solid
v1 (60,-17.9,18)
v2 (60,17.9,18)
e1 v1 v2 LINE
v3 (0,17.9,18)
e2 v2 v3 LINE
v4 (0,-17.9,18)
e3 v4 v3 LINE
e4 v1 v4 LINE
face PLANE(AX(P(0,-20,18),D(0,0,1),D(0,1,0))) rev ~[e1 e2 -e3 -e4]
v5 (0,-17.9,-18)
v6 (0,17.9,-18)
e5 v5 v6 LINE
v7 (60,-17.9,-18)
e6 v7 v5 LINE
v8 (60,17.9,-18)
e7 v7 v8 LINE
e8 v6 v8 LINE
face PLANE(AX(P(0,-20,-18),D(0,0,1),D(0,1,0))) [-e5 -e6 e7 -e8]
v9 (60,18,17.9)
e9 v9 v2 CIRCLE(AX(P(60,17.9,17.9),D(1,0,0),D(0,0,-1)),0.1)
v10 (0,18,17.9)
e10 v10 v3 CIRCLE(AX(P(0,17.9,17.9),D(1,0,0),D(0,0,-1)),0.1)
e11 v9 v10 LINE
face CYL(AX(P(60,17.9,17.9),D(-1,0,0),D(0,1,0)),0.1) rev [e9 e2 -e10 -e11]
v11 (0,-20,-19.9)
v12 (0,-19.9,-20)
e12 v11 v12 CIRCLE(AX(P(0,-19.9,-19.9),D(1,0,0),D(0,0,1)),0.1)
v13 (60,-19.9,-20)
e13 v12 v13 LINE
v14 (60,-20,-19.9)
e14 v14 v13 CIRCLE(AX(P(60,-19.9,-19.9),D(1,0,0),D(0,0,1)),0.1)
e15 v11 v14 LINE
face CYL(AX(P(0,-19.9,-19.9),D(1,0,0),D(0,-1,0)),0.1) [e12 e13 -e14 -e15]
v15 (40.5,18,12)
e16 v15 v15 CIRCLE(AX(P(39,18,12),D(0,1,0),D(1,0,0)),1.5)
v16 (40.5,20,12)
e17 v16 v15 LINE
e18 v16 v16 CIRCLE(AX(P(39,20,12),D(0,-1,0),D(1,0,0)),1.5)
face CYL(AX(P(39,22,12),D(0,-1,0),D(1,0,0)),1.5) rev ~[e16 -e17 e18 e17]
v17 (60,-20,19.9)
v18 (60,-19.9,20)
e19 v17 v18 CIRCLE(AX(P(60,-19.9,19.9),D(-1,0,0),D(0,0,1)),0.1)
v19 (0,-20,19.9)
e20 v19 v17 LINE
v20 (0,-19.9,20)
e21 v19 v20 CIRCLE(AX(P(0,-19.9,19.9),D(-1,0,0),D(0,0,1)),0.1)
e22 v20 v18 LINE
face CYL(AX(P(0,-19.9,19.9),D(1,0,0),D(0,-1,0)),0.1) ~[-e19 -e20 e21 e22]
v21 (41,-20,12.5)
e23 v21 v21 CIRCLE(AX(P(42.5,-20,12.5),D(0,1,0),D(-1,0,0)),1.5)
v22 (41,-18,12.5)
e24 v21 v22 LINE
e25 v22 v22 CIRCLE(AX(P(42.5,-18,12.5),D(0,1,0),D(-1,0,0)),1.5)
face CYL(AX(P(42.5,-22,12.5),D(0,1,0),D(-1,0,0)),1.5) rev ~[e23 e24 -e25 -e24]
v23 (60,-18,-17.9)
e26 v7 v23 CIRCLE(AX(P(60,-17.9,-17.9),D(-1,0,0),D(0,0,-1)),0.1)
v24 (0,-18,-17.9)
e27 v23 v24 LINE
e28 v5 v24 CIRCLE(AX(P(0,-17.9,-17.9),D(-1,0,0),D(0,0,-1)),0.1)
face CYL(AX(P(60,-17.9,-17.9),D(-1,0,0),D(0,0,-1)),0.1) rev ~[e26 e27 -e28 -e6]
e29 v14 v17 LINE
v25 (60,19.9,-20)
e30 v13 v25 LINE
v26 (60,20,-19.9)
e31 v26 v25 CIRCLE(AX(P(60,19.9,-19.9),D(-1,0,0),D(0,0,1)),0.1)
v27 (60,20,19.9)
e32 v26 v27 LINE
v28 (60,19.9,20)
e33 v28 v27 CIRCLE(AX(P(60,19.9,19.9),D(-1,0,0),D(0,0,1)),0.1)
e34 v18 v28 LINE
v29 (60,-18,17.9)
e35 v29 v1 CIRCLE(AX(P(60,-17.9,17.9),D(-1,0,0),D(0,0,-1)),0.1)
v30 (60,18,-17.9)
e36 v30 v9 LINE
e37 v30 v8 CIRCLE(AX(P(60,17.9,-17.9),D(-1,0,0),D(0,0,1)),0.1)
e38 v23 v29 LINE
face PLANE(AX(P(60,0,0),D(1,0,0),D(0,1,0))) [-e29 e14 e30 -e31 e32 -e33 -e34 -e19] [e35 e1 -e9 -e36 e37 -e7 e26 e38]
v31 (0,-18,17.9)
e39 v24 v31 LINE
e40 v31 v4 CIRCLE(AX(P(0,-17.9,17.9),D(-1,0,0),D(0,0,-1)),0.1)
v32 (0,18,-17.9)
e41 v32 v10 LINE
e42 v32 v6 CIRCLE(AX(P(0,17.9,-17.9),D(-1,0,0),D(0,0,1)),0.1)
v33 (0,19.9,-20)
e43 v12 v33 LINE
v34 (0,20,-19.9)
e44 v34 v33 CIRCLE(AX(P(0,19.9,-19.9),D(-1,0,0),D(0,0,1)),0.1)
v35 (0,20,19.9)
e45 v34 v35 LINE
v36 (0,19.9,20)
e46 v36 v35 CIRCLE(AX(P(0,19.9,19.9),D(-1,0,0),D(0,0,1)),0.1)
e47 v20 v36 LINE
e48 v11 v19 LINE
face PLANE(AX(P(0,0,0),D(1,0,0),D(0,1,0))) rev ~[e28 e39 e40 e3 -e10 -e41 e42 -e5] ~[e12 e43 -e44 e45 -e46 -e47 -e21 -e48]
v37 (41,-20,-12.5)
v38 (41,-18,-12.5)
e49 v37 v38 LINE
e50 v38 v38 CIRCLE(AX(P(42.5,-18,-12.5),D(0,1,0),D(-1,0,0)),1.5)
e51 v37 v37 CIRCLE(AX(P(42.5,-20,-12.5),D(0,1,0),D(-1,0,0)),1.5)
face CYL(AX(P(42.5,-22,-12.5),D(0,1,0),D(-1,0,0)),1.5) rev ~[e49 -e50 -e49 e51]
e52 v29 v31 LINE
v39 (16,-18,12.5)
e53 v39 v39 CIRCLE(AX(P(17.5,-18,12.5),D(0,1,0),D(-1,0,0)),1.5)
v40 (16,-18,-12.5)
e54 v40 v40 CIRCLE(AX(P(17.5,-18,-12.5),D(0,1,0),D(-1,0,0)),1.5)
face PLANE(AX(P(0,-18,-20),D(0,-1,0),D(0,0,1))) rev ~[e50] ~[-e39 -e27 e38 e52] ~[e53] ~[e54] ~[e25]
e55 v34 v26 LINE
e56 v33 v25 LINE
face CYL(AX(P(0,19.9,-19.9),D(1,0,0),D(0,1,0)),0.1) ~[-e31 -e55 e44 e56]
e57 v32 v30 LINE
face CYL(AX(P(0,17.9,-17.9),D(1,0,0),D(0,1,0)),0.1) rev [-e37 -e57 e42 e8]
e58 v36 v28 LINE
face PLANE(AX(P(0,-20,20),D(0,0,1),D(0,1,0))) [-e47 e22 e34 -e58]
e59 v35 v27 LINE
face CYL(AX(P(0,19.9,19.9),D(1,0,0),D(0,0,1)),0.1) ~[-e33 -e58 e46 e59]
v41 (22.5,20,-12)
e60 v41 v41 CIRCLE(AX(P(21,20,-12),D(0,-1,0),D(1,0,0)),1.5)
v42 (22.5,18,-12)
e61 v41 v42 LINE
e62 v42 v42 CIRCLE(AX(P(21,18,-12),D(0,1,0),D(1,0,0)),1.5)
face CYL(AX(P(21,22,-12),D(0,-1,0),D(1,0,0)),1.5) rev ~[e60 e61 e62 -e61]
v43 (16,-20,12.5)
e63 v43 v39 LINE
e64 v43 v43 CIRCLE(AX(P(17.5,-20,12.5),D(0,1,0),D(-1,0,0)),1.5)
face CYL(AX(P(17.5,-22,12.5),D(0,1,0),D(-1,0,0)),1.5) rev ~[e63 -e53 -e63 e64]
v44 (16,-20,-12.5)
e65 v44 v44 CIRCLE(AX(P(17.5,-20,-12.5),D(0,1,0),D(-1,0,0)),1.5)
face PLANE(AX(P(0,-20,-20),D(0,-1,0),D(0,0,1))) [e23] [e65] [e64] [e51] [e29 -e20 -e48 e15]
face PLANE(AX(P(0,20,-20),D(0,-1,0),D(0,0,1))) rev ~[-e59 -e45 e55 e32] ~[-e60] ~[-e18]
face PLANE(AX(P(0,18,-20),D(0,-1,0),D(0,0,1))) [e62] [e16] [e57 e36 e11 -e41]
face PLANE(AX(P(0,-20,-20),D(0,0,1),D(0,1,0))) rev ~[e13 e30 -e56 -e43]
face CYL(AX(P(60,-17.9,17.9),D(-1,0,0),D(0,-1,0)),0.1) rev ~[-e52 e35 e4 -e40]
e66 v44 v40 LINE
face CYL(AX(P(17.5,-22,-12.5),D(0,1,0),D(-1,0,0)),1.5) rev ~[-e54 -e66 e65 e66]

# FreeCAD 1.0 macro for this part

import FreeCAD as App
import Part
import Sketcher


def edges_at(feature, points):
    """Names of the edges that pass closest to the given points."""
    edges = feature.Shape.Edges
    near = lambda p: min(range(len(edges)), key=lambda i: edges[i].distToShape(Part.Vertex(*p))[0])
    return sorted({f"Edge{near(p) + 1}" for p in points})


def faces_at(feature, points):
    """Names of the faces that lie closest to the given points."""
    faces = feature.Shape.Faces
    near = lambda p: min(range(len(faces)), key=lambda i: faces[i].distToShape(Part.Vertex(*p))[0])
    return sorted({f"Face{near(p) + 1}" for p in points})


def add_polygon(sketch, points):
    """Adds a closed chain of lines whose ends are joined by coincident constraints."""
    first, n = sketch.GeometryCount, len(points)
    for a, b in zip(points, points[1:] + points[:1]):
        sketch.addGeometry(Part.LineSegment(App.Vector(*a, 0), App.Vector(*b, 0)), False)
    for i in range(n):
        sketch.addConstraint(Sketcher.Constraint("Coincident", first + i, 2, first + (i + 1) % n, 1))

doc = App.newDocument("Part")
params = doc.addObject("Spreadsheet::Sheet", "Params")
for row, (alias, value) in enumerate([
    ("sketch1_width", "40 mm"),
    ("pad1_length", "60 mm"),
    ("thickness_wall", "2 mm"),
    ("sketch2_diameter", "3 mm"),
    ("hole_diameter", "3 mm"),
    ("hole_depth", "2 mm"),
    ("fillet_radius", "0.1 mm"),
    ("fillet2_radius", "0.1 mm"),
    ("sketch3_diameter", "3 mm"),
    ("hole2_diameter", "3 mm"),
    ("hole2_depth", "2 mm"),
], start=1):
    params.set(f"A{row}", alias)
    params.set(f"B{row}", "=" + value)
    params.setAlias(f"B{row}", alias)

body = doc.addObject("PartDesign::Body", "Body")

# Sketch on YZ plane
sketch1 = body.newObject("Sketcher::SketchObject", "Sketch")
sketch1.AttachmentSupport = (doc.getObject("YZ_Plane"), [""])
sketch1.MapMode = "FlatFace"
add_polygon(sketch1, [(-20, 20), (-20, -20), (20, -20), (20, 20)])  # lines 0-3
sketch1.addConstraint([
    Sketcher.Constraint("Vertical", 0),
    Sketcher.Constraint("Horizontal", 1),
    Sketcher.Constraint("Vertical", 2),
    Sketcher.Constraint("Horizontal", 3),
    Sketcher.Constraint("Symmetric", 0, 2, 2, 2, -1, 1),
    Sketcher.Constraint("Equal", 3, 0),
    Sketcher.Constraint("DistanceX", 1, 1, 1, 2, 40.0),
])
sketch1.setExpression("Constraints[10]", "Params.sketch1_width")
pad1 = body.newObject("PartDesign::Pad", "Pad")
pad1.Profile = sketch1
pad1.setExpression("Length", "Params.pad1_length")
doc.recompute()

thickness = body.newObject("PartDesign::Thickness", "Thickness")
thickness.Base = (pad1, faces_at(pad1, [(60, 0, 0), (0, 0, 0)]))
thickness.setExpression("Value", "Params.thickness_wall")
thickness.Reversed = True
thickness.Join = "Arc"

# Sketch on XZ plane
sketch2 = body.newObject("Sketcher::SketchObject", "Sketch001")
sketch2.AttachmentSupport = (doc.getObject("XZ_Plane"), [""])
sketch2.MapMode = "FlatFace"
sketch2.AttachmentOffset = App.Placement(App.Vector(0, 0, 20), App.Rotation())
sketch2.addGeometry([
    Part.Circle(App.Vector(17.5, 12.5, 0), App.Vector(0, 0, 1), 1.5),
    Part.Circle(App.Vector(42.5, 12.5, 0), App.Vector(0, 0, 1), 1.5),
    Part.Circle(App.Vector(42.5, -12.5, 0), App.Vector(0, 0, 1), 1.5),
    Part.Circle(App.Vector(17.5, -12.5, 0), App.Vector(0, 0, 1), 1.5),
], False)
sketch2.addConstraint([
    Sketcher.Constraint("Equal", 0, 1),
    Sketcher.Constraint("Equal", 1, 2),
    Sketcher.Constraint("Equal", 2, 3),
    Sketcher.Constraint("Symmetric", 1, 3, 2, 3, -1),
    Sketcher.Constraint("Symmetric", 0, 3, 3, 3, -1),
    Sketcher.Constraint("Horizontal", 0, 3, 1, 3),
    Sketcher.Constraint("Diameter", 0, 3.0),
    Sketcher.Constraint("DistanceX", 0, 3, 1, 3, 25.0),
    Sketcher.Constraint("DistanceY", 2, 3, 1, 3, 25.0),
    Sketcher.Constraint("DistanceX", -1, 1, 0, 3, 17.5),
])
sketch2.setExpression("Constraints[6]", "Params.sketch2_diameter")
doc.recompute()
hole = body.newObject("PartDesign::Hole", "Hole")
hole.Profile = sketch2
hole.ThreadType = "None"
hole.setExpression("Diameter", "Params.hole_diameter")
hole.DepthType = "Dimension"
hole.setExpression("Depth", "Params.hole_depth")
hole.DrillPoint = "Angled"
hole.DrillPointAngle = 118
doc.recompute()

fillet = body.newObject("PartDesign::Fillet", "Fillet")
fillet.Base = (hole, edges_at(hole, [
    (30, -20, 20),
    (30, 20, 20),
    (30, -20, -20),
    (30, 20, -20),
]))
fillet.setExpression("Radius", "Params.fillet_radius")
doc.recompute()

fillet2 = body.newObject("PartDesign::Fillet", "Fillet001")
fillet2.Base = (fillet, edges_at(fillet, [
    (30, -18, 18),
    (30, 18, 18),
    (30, -18, -18),
    (30, 18, -18),
]))
fillet2.setExpression("Radius", "Params.fillet2_radius")

# Sketch on XZ plane
sketch3 = body.newObject("Sketcher::SketchObject", "Sketch002")
sketch3.AttachmentSupport = (doc.getObject("XZ_Plane"), [""])
sketch3.MapMode = "FlatFace"
sketch3.AttachmentOffset = App.Placement(App.Vector(0, 0, -20), App.Rotation())
sketch3.addGeometry([
    Part.Circle(App.Vector(39, 12, 0), App.Vector(0, 0, 1), 1.5),
    Part.Circle(App.Vector(21, -12, 0), App.Vector(0, 0, 1), 1.5),
], False)
sketch3.addConstraint([
    Sketcher.Constraint("Equal", 0, 1),
    Sketcher.Constraint("Diameter", 0, 3.0),
    Sketcher.Constraint("DistanceX", -1, 1, 0, 3, 39.0),
    Sketcher.Constraint("DistanceY", -1, 1, 0, 3, 12.0),
    Sketcher.Constraint("DistanceX", -1, 1, 1, 3, 21.0),
    Sketcher.Constraint("DistanceY", 1, 3, -1, 1, 12.0),
])
sketch3.setExpression("Constraints[1]", "Params.sketch3_diameter")
doc.recompute()
hole2 = body.newObject("PartDesign::Hole", "Hole001")
hole2.Profile = sketch3
hole2.ThreadType = "None"
hole2.setExpression("Diameter", "Params.hole2_diameter")
hole2.DepthType = "Dimension"
hole2.setExpression("Depth", "Params.hole2_depth")
hole2.DrillPoint = "Angled"
hole2.DrillPointAngle = 118
hole2.Reversed = True

doc.recompute()
